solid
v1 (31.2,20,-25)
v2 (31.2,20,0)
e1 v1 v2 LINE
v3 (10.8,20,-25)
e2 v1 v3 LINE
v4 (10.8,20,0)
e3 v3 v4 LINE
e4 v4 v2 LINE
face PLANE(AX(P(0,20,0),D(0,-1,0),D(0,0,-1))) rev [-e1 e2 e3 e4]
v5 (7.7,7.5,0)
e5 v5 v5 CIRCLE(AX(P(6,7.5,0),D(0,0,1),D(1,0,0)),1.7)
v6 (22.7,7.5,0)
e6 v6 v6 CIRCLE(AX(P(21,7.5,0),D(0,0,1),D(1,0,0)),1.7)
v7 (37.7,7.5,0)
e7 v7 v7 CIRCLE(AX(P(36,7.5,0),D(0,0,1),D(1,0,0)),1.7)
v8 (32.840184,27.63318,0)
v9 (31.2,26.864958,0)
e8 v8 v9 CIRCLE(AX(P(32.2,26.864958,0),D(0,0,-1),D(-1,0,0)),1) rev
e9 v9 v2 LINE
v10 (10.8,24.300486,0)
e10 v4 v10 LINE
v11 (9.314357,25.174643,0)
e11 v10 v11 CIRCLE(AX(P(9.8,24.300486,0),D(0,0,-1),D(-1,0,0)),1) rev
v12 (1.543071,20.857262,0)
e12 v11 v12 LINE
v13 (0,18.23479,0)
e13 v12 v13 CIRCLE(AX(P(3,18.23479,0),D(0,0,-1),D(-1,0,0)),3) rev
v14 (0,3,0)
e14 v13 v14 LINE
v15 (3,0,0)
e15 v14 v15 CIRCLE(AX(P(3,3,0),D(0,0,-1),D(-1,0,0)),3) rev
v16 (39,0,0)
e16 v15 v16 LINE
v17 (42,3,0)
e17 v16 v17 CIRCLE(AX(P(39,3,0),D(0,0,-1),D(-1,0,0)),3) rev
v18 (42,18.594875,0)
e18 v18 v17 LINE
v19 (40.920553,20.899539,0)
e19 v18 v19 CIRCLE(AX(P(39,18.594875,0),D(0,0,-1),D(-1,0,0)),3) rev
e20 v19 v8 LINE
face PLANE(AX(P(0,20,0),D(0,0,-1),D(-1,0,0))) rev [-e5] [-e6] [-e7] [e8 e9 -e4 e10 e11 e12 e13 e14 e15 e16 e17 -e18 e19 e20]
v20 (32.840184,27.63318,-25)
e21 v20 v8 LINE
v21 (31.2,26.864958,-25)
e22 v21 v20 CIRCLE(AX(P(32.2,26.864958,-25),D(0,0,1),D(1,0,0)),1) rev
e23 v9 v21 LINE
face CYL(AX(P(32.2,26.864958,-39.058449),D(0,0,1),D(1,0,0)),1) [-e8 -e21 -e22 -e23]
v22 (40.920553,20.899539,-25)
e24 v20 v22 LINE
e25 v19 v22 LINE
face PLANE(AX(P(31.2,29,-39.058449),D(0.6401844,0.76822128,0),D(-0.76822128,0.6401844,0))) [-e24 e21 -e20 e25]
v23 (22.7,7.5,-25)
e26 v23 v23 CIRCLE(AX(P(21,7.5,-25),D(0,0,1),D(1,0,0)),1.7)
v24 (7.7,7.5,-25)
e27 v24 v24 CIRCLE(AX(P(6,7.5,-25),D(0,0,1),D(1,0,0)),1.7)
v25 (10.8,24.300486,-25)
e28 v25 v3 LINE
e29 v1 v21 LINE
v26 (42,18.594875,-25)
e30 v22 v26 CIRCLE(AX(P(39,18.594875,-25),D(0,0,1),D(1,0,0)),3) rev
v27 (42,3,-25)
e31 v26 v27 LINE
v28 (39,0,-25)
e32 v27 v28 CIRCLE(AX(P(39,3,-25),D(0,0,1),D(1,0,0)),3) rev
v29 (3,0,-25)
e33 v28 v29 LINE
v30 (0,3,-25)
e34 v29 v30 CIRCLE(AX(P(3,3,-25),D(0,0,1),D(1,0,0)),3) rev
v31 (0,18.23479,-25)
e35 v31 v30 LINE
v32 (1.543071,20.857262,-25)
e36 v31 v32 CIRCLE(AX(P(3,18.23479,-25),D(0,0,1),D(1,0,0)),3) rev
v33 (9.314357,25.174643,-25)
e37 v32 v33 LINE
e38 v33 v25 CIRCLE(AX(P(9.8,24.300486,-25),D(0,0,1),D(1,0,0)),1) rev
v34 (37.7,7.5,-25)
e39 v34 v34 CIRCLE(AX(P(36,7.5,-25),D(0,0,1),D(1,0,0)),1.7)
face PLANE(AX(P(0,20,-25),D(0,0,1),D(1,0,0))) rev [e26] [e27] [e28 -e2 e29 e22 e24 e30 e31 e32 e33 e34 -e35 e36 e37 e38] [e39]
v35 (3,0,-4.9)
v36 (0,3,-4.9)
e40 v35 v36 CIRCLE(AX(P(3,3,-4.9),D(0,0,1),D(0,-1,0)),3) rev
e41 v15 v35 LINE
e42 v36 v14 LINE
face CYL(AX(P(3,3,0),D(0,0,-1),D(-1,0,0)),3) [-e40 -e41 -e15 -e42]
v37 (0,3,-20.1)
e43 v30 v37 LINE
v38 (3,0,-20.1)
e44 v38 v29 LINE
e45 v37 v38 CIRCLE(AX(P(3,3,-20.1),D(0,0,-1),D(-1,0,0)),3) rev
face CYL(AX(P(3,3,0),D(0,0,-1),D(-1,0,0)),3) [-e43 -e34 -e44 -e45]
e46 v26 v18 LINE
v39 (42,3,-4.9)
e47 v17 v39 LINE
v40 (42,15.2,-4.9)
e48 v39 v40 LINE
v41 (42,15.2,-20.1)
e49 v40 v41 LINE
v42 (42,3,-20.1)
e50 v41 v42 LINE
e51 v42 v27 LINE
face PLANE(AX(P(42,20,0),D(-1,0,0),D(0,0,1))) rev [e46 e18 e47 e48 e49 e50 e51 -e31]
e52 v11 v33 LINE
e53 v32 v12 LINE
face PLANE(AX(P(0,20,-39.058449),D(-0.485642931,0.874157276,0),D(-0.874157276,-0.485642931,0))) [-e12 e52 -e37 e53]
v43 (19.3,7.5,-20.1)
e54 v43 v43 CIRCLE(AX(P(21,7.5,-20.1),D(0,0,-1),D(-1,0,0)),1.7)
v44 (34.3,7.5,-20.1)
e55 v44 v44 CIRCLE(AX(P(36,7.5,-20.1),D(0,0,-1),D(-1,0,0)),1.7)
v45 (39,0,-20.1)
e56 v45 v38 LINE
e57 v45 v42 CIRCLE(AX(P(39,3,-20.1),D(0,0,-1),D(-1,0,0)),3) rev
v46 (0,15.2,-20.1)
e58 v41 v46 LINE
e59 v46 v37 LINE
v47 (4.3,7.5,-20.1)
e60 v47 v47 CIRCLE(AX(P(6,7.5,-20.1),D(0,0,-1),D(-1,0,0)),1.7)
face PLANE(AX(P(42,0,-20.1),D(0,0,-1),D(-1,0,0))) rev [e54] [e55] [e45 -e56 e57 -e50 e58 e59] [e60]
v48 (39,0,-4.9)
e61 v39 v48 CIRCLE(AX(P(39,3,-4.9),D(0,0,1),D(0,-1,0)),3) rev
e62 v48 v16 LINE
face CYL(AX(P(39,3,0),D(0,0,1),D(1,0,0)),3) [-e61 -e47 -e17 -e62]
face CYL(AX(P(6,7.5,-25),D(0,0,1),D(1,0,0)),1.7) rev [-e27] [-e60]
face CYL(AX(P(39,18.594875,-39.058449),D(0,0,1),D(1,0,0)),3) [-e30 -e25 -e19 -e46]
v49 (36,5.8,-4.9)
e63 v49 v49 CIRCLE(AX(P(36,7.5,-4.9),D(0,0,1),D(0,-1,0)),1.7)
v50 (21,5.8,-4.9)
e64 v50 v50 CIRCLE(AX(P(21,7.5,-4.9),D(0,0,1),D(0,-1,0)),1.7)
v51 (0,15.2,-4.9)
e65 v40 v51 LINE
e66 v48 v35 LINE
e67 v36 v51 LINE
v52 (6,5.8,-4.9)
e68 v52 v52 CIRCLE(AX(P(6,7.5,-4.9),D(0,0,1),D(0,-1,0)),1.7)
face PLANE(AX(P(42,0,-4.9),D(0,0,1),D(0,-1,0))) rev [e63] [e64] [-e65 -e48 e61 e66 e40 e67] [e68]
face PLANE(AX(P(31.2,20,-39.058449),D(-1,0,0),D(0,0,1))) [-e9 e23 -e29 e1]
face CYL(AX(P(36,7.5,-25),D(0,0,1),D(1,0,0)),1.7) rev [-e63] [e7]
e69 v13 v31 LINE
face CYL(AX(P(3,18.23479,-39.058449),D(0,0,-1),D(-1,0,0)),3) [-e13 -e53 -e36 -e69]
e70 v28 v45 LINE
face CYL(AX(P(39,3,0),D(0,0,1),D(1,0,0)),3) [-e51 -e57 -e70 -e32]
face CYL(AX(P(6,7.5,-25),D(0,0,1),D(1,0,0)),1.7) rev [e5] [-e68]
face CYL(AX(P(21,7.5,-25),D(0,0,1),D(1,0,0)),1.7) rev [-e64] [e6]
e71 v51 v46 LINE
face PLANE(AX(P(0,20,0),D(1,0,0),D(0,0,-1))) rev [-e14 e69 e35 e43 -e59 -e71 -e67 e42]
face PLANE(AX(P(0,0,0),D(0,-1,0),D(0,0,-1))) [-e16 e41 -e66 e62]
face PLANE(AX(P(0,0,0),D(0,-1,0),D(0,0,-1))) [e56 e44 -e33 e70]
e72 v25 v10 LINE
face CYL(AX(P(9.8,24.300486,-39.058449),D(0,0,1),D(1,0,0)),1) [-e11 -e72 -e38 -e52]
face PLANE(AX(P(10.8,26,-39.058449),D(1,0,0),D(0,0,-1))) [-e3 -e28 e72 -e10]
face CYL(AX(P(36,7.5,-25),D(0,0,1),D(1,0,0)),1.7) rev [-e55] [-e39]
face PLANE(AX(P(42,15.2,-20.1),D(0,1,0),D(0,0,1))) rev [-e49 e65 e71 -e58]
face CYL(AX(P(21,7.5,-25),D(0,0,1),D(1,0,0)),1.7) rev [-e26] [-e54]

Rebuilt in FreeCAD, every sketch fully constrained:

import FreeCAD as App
import Part
import Sketcher
from FreeCAD import Vector
Q = App.Units.Quantity


def edges_at(feature, points):
    """Names of the edges that pass closest to the given points."""
    edges = feature.Shape.Edges
    near = lambda p: min(range(len(edges)), key=lambda i: edges[i].distToShape(Part.Vertex(*p))[0])
    return sorted({f"Edge{near(p) + 1}" for p in points})


def add_polygon(sketch, points):
    """Adds a closed chain of lines whose ends are joined by coincident constraints."""
    first, n = sketch.GeometryCount, len(points)
    for a, b in zip(points, points[1:] + points[:1]):
        sketch.addGeometry(Part.LineSegment(App.Vector(*a, 0), App.Vector(*b, 0)), False)
    for i in range(n):
        sketch.addConstraint(Sketcher.Constraint("Coincident", first + i, 2, first + (i + 1) % n, 1))

doc = App.newDocument("Part")
body = doc.addObject("PartDesign::Body", "Body")

sketch1 = doc.addObject("Sketcher::SketchObject", "Sketch")
body.addObject(sketch1)
sketch1.AttachmentSupport = (doc.XZ_Plane, [""])
sketch1.MapMode = "FlatFace"
add_polygon(sketch1, [(0, -25), (0, 0), (42, 0), (42, -25)])
sketch1.addConstraint([
    Sketcher.Constraint("Vertical", 0),
    Sketcher.Constraint("Horizontal", 1),
    Sketcher.Constraint("Vertical", 2),
    Sketcher.Constraint("Horizontal", 3),
    Sketcher.Constraint("Coincident", 0, 2, -1, 1),
    Sketcher.Constraint("DistanceX", 1, 1, 1, 2, Q("42 mm")),
    Sketcher.Constraint("DistanceY", 0, 1, 0, 2, Q("25 mm")),
])
pad1 = doc.addObject("PartDesign::Pad", "Pad")
body.addObject(pad1)
pad1.Profile = sketch1
pad1.Length = 20
pad1.Reversed = True

sketch2 = doc.addObject("Sketcher::SketchObject", "Sketch001")
body.addObject(sketch2)
sketch2.AttachmentSupport = (doc.YZ_Plane, [""])
sketch2.MapMode = "FlatFace"
add_polygon(sketch2, [(15, -20), (0, -20), (0, -5), (15, -5)])
sketch2.addConstraint([
    Sketcher.Constraint("Horizontal", 0),
    Sketcher.Constraint("Vertical", 1),
    Sketcher.Constraint("Horizontal", 2),
    Sketcher.Constraint("Vertical", 3),
    Sketcher.Constraint("PointOnObject", 0, 2, -2),
    Sketcher.Constraint("Equal", 2, 1),
    Sketcher.Constraint("DistanceX", 0, 2, 0, 1, Q("15.2 mm")),
    Sketcher.Constraint("DistanceY", 0, 2, -1, 1, Q("20.1 mm")),
])
pocket1 = doc.addObject("PartDesign::Pocket", "Pocket")
body.addObject(pocket1)
pocket1.Profile = sketch2
pocket1.Type = "ThroughAll"
pocket1.Reversed = True

sketch3 = doc.addObject("Sketcher::SketchObject", "Sketch002")
body.addObject(sketch3)
sketch3.AttachmentSupport = (doc.XY_Plane, [""])
sketch3.MapMode = "FlatFace"
add_polygon(sketch3, [(11, 20), (11, 26), (0, 20)])
add_polygon(sketch3, [(31, 29), (31, 20), (42, 20)])
sketch3.addConstraint([
    Sketcher.Constraint("Vertical", 0),
    Sketcher.Constraint("Horizontal", 2),
    Sketcher.Constraint("Vertical", 3),
    Sketcher.Constraint("Horizontal", 4),
    Sketcher.Constraint("PointOnObject", 1, 2, -2),
    Sketcher.Constraint("Horizontal", 2, 2, 3, 2),
    Sketcher.Constraint("Equal", 2, 4),
    Sketcher.Constraint("DistanceY", 0, 1, 0, 2, Q("6 mm")),
    Sketcher.Constraint("DistanceY", 3, 2, 3, 1, Q("9 mm")),
    Sketcher.Constraint("DistanceX", 2, 1, 2, 2, Q("10.8 mm")),
    Sketcher.Constraint("DistanceY", -1, 1, 0, 2, Q("26 mm")),
    Sketcher.Constraint("DistanceX", -1, 1, 4, 2, Q("42 mm")),
])
pad2 = doc.addObject("PartDesign::Pad", "Pad001")
body.addObject(pad2)
pad2.Profile = sketch3
pad2.Length = 25
pad2.Reversed = True

sketch4 = doc.addObject("Sketcher::SketchObject", "Sketch003")
body.addObject(sketch4)
sketch4.AttachmentSupport = (doc.XY_Plane, [""])
sketch4.MapMode = "FlatFace"
sketch4.addGeometry([
    Part.Circle(Vector(6, 7.5, 0), Vector(0, 0, 1), 1.7),
    Part.Circle(Vector(21, 7.5, 0), Vector(0, 0, 1), 1.7),
    Part.Circle(Vector(36, 7.5, 0), Vector(0, 0, 1), 1.7),
], False)
sketch4.addConstraint([
    Sketcher.Constraint("Equal", 0, 1),
    Sketcher.Constraint("Equal", 1, 2),
    Sketcher.Constraint("Horizontal", 0, 3, 1, 3),
    Sketcher.Constraint("Horizontal", 1, 3, 2, 3),
    Sketcher.Constraint("Diameter", 0, Q("3.4 mm")),
    Sketcher.Constraint("DistanceX", -1, 1, 0, 3, Q("6 mm")),
    Sketcher.Constraint("DistanceX", -1, 1, 1, 3, Q("21 mm")),
    Sketcher.Constraint("DistanceX", -1, 1, 2, 3, Q("36 mm")),
    Sketcher.Constraint("DistanceY", -1, 1, 0, 3, Q("7.5 mm")),
])
pocket2 = doc.addObject("PartDesign::Pocket", "Pocket001")
body.addObject(pocket2)
pocket2.Profile = sketch4
pocket2.Type = "ThroughAll"
doc.recompute()

fillet = doc.addObject("PartDesign::Fillet", "Fillet")
body.addObject(fillet)
fillet.Base = (pocket2, edges_at(pocket2, [
    (42, 20, -12.5),
    (0, 0, -2.45),
    (42, 0, -22.55),
    (0, 20, -12.5),
    (42, 0, -2.45),
    (0, 0, -22.55),
]))
fillet.Radius = 3
doc.recompute()

fillet2 = doc.addObject("PartDesign::Fillet", "Fillet001")
body.addObject(fillet2)
fillet2.Base = (fillet, edges_at(fillet, [(10.8, 26, -12.5), (31.2, 29, -12.5)]))
fillet2.Radius = 1

doc.recompute()
